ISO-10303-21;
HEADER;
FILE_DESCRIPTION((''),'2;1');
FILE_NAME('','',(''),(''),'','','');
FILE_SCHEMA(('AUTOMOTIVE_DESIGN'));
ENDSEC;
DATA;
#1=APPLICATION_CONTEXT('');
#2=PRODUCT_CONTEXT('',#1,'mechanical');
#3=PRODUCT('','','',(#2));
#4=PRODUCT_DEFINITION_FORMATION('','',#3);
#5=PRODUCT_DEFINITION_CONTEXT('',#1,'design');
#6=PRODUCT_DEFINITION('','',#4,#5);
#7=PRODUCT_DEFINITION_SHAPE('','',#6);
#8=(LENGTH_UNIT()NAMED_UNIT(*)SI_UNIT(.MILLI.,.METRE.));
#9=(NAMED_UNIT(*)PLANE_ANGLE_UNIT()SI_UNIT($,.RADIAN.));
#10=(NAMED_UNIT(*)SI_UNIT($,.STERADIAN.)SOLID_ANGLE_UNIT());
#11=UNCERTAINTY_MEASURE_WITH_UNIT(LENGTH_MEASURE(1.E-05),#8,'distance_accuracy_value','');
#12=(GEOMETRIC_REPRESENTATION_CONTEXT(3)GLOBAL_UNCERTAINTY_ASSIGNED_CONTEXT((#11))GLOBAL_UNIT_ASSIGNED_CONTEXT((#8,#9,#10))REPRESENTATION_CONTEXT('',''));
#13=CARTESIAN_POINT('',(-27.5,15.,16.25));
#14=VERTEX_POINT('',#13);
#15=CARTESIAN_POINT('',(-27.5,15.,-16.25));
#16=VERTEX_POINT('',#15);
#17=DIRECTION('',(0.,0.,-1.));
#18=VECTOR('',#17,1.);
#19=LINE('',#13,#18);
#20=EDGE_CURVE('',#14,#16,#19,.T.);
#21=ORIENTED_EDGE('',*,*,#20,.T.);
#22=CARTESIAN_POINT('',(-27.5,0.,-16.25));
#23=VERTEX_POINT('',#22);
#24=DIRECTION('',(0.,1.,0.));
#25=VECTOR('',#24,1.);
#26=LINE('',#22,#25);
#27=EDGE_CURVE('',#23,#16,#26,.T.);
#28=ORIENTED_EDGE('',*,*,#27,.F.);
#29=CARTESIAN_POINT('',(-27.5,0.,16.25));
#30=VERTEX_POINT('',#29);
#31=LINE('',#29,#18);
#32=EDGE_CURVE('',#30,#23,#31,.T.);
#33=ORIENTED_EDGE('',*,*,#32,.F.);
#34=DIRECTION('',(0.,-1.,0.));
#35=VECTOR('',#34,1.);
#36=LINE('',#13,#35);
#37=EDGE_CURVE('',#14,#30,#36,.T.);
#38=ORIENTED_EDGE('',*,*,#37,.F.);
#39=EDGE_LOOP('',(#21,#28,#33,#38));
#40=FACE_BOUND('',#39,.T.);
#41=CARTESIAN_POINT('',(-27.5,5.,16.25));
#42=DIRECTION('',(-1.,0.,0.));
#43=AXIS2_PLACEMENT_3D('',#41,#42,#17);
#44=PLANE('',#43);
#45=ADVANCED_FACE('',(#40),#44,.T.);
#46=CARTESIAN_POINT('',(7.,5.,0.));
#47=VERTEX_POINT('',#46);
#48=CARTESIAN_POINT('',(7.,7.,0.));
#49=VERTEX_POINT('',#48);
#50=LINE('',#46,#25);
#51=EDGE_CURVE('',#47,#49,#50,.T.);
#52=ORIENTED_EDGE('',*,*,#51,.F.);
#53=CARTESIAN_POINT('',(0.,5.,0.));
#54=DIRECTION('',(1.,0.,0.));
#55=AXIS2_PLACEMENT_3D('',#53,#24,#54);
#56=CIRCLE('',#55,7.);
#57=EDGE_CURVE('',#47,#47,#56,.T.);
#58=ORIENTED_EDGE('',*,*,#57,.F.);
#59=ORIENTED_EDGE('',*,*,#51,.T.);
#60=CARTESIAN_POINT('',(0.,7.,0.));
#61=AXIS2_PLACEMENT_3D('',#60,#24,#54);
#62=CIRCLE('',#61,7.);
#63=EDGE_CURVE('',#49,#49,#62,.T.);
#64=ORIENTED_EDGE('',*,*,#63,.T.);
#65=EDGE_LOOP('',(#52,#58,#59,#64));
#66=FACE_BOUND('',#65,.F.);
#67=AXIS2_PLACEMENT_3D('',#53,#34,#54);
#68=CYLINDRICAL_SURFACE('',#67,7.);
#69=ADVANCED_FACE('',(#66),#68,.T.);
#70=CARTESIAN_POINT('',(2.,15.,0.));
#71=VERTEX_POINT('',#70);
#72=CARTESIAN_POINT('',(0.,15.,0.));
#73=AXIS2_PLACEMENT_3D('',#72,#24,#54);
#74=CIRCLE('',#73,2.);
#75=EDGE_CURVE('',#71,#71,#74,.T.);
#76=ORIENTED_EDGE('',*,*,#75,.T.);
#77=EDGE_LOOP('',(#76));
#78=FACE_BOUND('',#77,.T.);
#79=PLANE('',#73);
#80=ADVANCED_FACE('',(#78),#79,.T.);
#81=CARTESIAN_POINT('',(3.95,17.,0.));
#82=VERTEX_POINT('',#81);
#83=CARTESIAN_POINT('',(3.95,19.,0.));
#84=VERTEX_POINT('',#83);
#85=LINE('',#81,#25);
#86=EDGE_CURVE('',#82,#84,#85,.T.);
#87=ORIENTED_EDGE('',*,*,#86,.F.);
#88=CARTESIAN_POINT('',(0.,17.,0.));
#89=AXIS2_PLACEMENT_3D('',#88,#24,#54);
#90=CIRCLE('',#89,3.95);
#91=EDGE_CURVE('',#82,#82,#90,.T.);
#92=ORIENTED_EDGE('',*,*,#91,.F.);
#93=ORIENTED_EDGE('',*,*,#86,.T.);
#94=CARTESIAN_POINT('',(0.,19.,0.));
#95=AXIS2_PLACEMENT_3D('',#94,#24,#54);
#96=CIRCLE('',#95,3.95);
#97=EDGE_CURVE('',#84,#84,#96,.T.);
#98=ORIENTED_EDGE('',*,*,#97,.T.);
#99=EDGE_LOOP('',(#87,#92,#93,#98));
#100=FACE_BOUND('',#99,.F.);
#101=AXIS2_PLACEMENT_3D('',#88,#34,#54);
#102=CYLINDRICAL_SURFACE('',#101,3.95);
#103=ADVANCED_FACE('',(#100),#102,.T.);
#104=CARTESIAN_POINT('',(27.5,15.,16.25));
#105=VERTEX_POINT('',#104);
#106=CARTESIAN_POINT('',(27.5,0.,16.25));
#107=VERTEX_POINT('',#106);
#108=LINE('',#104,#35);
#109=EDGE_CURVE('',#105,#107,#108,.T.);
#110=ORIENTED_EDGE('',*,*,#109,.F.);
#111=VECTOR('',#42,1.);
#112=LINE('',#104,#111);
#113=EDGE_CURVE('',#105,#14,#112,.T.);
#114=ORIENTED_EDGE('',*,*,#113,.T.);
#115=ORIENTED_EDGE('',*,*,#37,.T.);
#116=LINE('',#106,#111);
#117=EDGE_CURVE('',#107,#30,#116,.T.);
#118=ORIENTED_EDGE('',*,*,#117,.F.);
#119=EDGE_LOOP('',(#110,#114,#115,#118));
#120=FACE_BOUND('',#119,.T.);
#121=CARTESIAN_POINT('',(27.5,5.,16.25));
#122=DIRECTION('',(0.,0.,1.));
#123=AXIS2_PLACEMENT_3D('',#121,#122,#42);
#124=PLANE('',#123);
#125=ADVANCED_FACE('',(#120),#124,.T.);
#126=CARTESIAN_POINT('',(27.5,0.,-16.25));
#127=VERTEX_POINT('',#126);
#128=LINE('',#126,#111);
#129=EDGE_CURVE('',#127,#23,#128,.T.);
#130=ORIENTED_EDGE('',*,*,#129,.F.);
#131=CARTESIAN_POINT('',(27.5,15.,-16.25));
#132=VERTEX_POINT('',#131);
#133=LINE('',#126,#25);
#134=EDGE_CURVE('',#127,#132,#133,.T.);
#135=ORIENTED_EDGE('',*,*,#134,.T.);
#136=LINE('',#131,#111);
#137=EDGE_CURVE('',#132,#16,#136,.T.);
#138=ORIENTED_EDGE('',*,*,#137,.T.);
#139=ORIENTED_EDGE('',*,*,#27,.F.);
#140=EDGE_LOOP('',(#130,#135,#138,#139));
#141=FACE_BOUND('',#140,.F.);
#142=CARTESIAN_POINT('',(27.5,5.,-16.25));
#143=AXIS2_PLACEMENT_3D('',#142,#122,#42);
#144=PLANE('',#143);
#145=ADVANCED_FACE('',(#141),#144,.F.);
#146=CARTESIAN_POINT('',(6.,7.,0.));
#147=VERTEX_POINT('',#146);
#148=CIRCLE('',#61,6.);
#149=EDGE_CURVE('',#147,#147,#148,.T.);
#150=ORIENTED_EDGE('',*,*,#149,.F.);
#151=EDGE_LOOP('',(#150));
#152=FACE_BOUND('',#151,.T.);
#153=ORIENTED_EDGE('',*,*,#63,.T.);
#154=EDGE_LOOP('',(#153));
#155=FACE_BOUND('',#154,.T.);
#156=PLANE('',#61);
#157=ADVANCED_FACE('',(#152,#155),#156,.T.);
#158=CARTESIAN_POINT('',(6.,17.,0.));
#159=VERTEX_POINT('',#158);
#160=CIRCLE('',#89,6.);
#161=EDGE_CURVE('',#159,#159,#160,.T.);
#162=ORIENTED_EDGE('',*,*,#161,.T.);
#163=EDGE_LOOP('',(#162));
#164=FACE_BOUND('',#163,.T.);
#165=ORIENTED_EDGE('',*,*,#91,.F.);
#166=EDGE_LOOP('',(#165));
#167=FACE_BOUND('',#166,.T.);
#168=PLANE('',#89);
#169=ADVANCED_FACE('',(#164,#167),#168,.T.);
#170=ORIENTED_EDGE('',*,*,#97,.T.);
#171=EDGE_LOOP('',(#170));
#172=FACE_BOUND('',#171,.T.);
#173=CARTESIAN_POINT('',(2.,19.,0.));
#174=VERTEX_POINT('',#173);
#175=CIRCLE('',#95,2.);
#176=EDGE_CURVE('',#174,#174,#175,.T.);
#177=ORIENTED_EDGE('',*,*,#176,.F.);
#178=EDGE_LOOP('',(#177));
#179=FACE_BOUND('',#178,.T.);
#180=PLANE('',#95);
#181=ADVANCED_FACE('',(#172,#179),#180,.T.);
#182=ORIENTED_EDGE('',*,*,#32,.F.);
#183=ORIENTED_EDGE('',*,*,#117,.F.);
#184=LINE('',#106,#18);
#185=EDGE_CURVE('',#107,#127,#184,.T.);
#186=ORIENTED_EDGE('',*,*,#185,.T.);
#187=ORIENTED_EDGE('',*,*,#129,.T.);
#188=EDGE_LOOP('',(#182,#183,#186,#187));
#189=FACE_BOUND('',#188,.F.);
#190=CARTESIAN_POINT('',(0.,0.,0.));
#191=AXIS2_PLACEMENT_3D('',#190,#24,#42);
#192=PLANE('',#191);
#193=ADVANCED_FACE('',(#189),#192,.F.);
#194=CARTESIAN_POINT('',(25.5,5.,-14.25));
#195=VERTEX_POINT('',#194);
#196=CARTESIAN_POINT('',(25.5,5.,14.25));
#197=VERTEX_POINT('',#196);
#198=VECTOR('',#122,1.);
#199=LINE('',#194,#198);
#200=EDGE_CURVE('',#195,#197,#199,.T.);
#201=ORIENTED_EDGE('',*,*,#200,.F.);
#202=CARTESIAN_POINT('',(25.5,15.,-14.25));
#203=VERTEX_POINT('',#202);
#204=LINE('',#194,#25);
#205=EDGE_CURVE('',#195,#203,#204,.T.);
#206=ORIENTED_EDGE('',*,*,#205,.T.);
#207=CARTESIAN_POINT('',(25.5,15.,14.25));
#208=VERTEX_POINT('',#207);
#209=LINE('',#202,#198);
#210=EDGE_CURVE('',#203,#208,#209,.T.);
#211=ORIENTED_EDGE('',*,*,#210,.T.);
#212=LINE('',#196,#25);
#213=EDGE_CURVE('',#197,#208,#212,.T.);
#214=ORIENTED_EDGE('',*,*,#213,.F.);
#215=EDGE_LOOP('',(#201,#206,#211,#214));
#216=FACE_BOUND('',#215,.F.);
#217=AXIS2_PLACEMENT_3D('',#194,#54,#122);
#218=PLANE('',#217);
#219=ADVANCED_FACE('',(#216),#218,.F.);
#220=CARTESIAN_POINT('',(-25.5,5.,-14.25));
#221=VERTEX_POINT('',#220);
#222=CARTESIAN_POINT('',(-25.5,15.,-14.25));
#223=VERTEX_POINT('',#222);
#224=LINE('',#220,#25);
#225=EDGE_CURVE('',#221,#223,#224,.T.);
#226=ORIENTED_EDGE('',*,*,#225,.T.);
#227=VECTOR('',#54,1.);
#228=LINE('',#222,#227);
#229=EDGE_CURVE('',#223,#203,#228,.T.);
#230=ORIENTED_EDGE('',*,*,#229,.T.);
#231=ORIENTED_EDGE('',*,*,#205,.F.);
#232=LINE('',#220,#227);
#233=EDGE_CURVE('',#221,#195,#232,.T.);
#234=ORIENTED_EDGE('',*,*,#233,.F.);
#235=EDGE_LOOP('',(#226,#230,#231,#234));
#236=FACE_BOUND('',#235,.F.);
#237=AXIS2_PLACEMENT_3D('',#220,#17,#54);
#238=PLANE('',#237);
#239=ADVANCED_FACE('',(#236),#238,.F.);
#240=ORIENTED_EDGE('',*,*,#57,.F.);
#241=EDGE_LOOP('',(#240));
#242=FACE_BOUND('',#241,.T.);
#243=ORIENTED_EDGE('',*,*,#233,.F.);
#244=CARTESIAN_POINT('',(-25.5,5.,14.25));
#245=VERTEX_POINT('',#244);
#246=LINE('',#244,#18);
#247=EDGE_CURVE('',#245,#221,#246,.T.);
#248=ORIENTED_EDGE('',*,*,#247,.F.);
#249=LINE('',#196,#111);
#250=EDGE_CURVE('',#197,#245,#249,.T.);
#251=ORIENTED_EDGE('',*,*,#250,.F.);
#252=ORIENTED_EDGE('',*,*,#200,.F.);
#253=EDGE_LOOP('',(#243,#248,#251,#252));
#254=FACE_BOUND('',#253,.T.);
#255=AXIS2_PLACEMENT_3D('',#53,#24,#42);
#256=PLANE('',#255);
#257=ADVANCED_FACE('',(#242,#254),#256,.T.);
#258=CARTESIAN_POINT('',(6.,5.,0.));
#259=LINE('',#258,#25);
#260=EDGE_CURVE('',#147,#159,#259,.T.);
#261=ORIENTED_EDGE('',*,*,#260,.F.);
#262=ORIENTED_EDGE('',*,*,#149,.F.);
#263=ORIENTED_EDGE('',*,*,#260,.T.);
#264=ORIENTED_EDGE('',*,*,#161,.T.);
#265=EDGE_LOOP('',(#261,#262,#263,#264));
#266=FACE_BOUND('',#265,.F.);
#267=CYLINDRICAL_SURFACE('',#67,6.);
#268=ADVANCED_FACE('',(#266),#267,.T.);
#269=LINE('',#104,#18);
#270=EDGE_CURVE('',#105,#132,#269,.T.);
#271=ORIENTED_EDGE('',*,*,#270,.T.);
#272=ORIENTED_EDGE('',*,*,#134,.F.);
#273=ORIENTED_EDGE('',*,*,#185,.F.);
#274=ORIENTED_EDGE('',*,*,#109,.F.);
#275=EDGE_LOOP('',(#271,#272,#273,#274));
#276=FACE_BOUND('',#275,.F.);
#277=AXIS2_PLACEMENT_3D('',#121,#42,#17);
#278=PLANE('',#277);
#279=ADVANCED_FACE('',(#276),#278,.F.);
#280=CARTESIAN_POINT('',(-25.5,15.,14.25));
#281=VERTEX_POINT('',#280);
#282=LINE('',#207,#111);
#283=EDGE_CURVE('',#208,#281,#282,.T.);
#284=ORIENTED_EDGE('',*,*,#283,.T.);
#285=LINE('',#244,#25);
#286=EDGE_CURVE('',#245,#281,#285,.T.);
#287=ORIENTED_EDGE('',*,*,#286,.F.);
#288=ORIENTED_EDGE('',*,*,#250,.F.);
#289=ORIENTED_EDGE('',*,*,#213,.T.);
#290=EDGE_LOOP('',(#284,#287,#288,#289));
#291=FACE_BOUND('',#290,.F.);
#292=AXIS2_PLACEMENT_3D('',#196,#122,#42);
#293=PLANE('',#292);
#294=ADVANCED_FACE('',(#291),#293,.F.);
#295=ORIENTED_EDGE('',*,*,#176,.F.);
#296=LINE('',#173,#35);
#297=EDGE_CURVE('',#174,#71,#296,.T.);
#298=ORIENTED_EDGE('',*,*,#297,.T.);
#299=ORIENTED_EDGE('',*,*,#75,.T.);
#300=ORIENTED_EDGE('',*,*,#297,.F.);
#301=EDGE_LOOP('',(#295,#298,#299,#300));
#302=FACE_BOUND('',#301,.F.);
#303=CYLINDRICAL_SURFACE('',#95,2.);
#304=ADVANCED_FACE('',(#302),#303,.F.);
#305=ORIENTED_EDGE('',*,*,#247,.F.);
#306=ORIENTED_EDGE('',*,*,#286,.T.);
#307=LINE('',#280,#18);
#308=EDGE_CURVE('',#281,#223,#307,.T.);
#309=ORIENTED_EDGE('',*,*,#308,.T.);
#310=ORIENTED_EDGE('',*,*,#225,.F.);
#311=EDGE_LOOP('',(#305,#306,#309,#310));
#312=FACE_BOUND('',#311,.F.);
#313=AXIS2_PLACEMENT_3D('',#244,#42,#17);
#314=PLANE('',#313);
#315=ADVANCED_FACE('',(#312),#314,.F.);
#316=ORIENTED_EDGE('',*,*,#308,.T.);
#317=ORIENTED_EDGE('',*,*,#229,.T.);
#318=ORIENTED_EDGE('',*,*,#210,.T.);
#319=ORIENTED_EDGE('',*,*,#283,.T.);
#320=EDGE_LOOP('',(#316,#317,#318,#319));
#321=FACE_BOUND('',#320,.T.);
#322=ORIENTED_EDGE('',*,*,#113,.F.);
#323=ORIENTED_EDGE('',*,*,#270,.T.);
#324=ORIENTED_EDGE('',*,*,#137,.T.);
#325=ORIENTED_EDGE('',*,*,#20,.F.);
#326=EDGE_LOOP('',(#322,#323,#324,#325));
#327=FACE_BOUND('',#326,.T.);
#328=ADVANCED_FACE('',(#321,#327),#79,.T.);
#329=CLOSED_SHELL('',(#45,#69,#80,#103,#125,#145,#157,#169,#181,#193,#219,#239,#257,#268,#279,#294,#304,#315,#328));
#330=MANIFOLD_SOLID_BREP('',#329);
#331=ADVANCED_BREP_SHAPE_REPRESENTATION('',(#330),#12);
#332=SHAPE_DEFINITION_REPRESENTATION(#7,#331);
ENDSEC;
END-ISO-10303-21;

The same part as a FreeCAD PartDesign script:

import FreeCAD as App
import Part
import Sketcher

V = App.Vector
Q = App.Units.Quantity

doc = App.newDocument("Part")
body = doc.addObject("PartDesign::Body", "Body")

# Sketch on XZ plane
sketch1 = body.newObject("Sketcher::SketchObject", "Sketch")
sketch1.AttachmentSupport = (doc.getObject("XZ_Plane"), [""])
sketch1.MapMode = "FlatFace"
sketch1.addGeometry([
    Part.LineSegment(V(27.5, -16.25, 0), V(-27.5, -16.25, 0)),
    Part.LineSegment(V(-27.5, -16.25, 0), V(-27.5, 16.25, 0)),
    Part.LineSegment(V(-27.5, 16.25, 0), V(27.5, 16.25, 0)),
    Part.LineSegment(V(27.5, 16.25, 0), V(27.5, -16.25, 0)),
], False)
sketch1.addConstraint([
    Sketcher.Constraint("Coincident", 0, 2, 1, 1),
    Sketcher.Constraint("Coincident", 1, 2, 2, 1),
    Sketcher.Constraint("Coincident", 2, 2, 3, 1),
    Sketcher.Constraint("Coincident", 3, 2, 0, 1),
    Sketcher.Constraint("Horizontal", 0),
    Sketcher.Constraint("Vertical", 1),
    Sketcher.Constraint("Horizontal", 2),
    Sketcher.Constraint("Vertical", 3),
    Sketcher.Constraint("Symmetric", 0, 2, 2, 2, -1, 1),
    Sketcher.Constraint("DistanceX", 0, 2, 0, 1, Q("55 mm")),
    Sketcher.Constraint("DistanceY", 1, 1, 1, 2, Q("32.5 mm")),
])
pad1 = body.newObject("PartDesign::Pad", "Pad")
pad1.Profile = sketch1
pad1.Length = 5
pad1.Reversed = True

# Sketch on XZ plane
sketch2 = body.newObject("Sketcher::SketchObject", "Sketch001")
sketch2.AttachmentSupport = (doc.getObject("XZ_Plane"), [""])
sketch2.MapMode = "FlatFace"
sketch2.AttachmentOffset = App.Placement(V(0, 0, -5), App.Rotation())
sketch2.addGeometry([
    Part.LineSegment(V(27.5, 16.25, 0), V(27.5, -16.25, 0)),  # 0
    Part.LineSegment(V(27.5, -16.25, 0), V(-27.5, -16.25, 0)),  # 1
    Part.LineSegment(V(-27.5, -16.25, 0), V(-27.5, 16.25, 0)),  # 2
    Part.LineSegment(V(-27.5, 16.25, 0), V(27.5, 16.25, 0)),  # 3
    Part.LineSegment(V(-25.5, 14.25, 0), V(-25.5, -14.25, 0)),  # 4
    Part.LineSegment(V(-25.5, -14.25, 0), V(25.5, -14.25, 0)),  # 5
    Part.LineSegment(V(25.5, -14.25, 0), V(25.5, 14.25, 0)),  # 6
    Part.LineSegment(V(25.5, 14.25, 0), V(-25.5, 14.25, 0)),  # 7
], False)
sketch2.addConstraint([
    Sketcher.Constraint("Coincident", 0, 2, 1, 1),
    Sketcher.Constraint("Coincident", 1, 2, 2, 1),
    Sketcher.Constraint("Coincident", 2, 2, 3, 1),
    Sketcher.Constraint("Coincident", 3, 2, 0, 1),
    Sketcher.Constraint("Coincident", 4, 2, 5, 1),
    Sketcher.Constraint("Coincident", 5, 2, 6, 1),
    Sketcher.Constraint("Coincident", 6, 2, 7, 1),
    Sketcher.Constraint("Coincident", 7, 2, 4, 1),
    Sketcher.Constraint("Vertical", 0),
    Sketcher.Constraint("Horizontal", 1),
    Sketcher.Constraint("Vertical", 2),
    Sketcher.Constraint("Horizontal", 3),
    Sketcher.Constraint("Vertical", 4),
    Sketcher.Constraint("Horizontal", 5),
    Sketcher.Constraint("Vertical", 6),
    Sketcher.Constraint("Horizontal", 7),
    Sketcher.Constraint("Symmetric", 0, 2, 2, 2, -1, 1),
    Sketcher.Constraint("Symmetric", 4, 2, 6, 2, -1, 1),
    Sketcher.Constraint("DistanceX", 1, 2, 4, 2, Q("2 mm")),
    Sketcher.Constraint("DistanceY", 1, 2, 4, 2, Q("2 mm")),
    Sketcher.Constraint("DistanceX", 1, 2, 1, 1, Q("55 mm")),
    Sketcher.Constraint("DistanceY", 0, 2, 0, 1, Q("32.5 mm")),
])
pad2 = body.newObject("PartDesign::Pad", "Pad001")
pad2.Profile = sketch2
pad2.Length = 10
pad2.Reversed = True

# Sketch on XZ plane
sketch3 = body.newObject("Sketcher::SketchObject", "Sketch002")
sketch3.AttachmentSupport = (doc.getObject("XZ_Plane"), [""])
sketch3.MapMode = "FlatFace"
sketch3.AttachmentOffset = App.Placement(V(0, 0, -5), App.Rotation())
sketch3.addGeometry([
    Part.Circle(V(0, 0, 0), V(0, 0, 1), 7),
    Part.Circle(V(0, 0, 0), V(0, 0, 1), 6),
], False)
sketch3.addConstraint([
    Sketcher.Constraint("Coincident", 0, 3, -1, 1),
    Sketcher.Constraint("Coincident", 1, 3, -1, 1),
    Sketcher.Constraint("Diameter", 0, Q("14 mm")),
    Sketcher.Constraint("Diameter", 1, Q("12 mm")),
])
pad3 = body.newObject("PartDesign::Pad", "Pad002")
pad3.Profile = sketch3
pad3.Length = 2
pad3.Reversed = True

# Sketch on XZ plane
sketch4 = body.newObject("Sketcher::SketchObject", "Sketch003")
sketch4.AttachmentSupport = (doc.getObject("XZ_Plane"), [""])
sketch4.MapMode = "FlatFace"
sketch4.AttachmentOffset = App.Placement(V(0, 0, -5), App.Rotation())
sketch4.addGeometry(Part.Circle(V(0, 0, 0), V(0, 0, 1), 6), False)
sketch4.addConstraint([
    Sketcher.Constraint("Coincident", 0, 3, -1, 1),
    Sketcher.Constraint("Diameter", 0, Q("12 mm")),
])
pad4 = body.newObject("PartDesign::Pad", "Pad003")
pad4.Profile = sketch4
pad4.Length = 12
pad4.Reversed = True

# Sketch on XZ plane
sketch5 = body.newObject("Sketcher::SketchObject", "Sketch004")
sketch5.AttachmentSupport = (doc.getObject("XZ_Plane"), [""])
sketch5.MapMode = "FlatFace"
sketch5.AttachmentOffset = App.Placement(V(0, 0, -17), App.Rotation())
sketch5.addGeometry(Part.Circle(V(0, 0, 0), V(0, 0, 1), 3.95), False)
sketch5.addConstraint([
    Sketcher.Constraint("Coincident", 0, 3, -1, 1),
    Sketcher.Constraint("Diameter", 0, Q("7.9 mm")),
])
pad5 = body.newObject("PartDesign::Pad", "Pad004")
pad5.Profile = sketch5
pad5.Length = 2
pad5.Reversed = True

# Sketch on XZ plane
sketch6 = body.newObject("Sketcher::SketchObject", "Sketch005")
sketch6.AttachmentSupport = (doc.getObject("XZ_Plane"), [""])
sketch6.MapMode = "FlatFace"
sketch6.AttachmentOffset = App.Placement(V(0, 0, -19), App.Rotation())
sketch6.addGeometry(Part.Circle(V(0, 0, 0), V(0, 0, 1), 2), False)
sketch6.addConstraint([
    Sketcher.Constraint("Coincident", 0, 3, -1, 1),
    Sketcher.Constraint("Diameter", 0, Q("4 mm")),
])
pocket1 = body.newObject("PartDesign::Pocket", "Pocket")
pocket1.Profile = sketch6
pocket1.Length = 4
pocket1.Reversed = True

doc.recompute()
